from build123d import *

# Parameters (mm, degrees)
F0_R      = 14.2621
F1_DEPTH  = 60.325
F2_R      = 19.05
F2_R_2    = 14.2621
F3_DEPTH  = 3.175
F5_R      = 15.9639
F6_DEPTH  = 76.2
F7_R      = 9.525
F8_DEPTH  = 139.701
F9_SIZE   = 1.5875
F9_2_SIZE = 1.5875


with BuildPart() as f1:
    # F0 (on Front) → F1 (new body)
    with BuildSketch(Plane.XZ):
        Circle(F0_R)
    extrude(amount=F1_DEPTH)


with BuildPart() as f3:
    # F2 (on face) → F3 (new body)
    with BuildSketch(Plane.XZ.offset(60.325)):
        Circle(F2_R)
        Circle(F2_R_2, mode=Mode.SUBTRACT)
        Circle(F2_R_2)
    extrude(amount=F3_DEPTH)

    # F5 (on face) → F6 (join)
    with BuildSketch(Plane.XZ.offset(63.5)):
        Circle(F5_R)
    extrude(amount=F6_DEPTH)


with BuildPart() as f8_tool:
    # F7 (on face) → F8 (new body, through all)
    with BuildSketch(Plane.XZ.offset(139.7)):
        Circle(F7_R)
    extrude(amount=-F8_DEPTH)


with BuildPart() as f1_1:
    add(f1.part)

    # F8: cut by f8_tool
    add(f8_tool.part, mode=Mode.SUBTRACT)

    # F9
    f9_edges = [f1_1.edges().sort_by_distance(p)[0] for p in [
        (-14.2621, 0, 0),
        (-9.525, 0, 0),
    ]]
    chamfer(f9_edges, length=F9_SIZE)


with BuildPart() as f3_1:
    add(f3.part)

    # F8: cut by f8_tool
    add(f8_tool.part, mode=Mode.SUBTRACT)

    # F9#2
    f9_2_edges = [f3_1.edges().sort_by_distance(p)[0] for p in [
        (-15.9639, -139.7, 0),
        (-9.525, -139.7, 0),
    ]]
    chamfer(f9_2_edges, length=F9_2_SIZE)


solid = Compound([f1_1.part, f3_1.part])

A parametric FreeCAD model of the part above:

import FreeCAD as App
import Part
import Sketcher
Q = App.Units.Quantity


def edges_at(feature, points):
    """Names of the edges that pass closest to the given points."""
    edges = feature.Shape.Edges
    near = lambda p: min(range(len(edges)), key=lambda i: edges[i].distToShape(Part.Vertex(*p))[0])
    return sorted({f"Edge{near(p) + 1}" for p in points})

doc = App.newDocument("Part")
body = doc.addObject("PartDesign::Body", "Body")

# Sketch on XZ plane
sketch1 = doc.addObject("Sketcher::SketchObject", "Sketch")
body.addObject(sketch1)
sketch1.AttachmentSupport = (doc.XZ_Plane, [""])
sketch1.MapMode = "FlatFace"
sketch1.addGeometry(Part.Circle(App.Vector(0, 0, 0), App.Vector(0, 0, 1), 14.2621), False)
sketch1.addConstraint([
    Sketcher.Constraint("Coincident", 0, 3, -1, 1),
    Sketcher.Constraint("Diameter", 0, Q("1.123 in")),
])
pad1 = doc.addObject("PartDesign::Pad", "Pad")
body.addObject(pad1)
pad1.Profile = sketch1
pad1.Length = Q("2.375 in")
body2 = doc.addObject("PartDesign::Body", "Body001")

# Sketch on XZ plane
sketch2 = doc.addObject("Sketcher::SketchObject", "Sketch001")
body2.addObject(sketch2)
sketch2.AttachmentSupport = (doc.getObject("XZ_Plane001"), [""])
sketch2.MapMode = "FlatFace"
sketch2.AttachmentOffset = App.Placement(App.Vector(0, 0, 2.375 * 25.4), App.Rotation())
sketch2.addGeometry(Part.Circle(App.Vector(0, 0, 0), App.Vector(0, 0, 1), 19.05), False)
sketch2.addConstraint([
    Sketcher.Constraint("Coincident", 0, 3, -1, 1),
    Sketcher.Constraint("Diameter", 0, Q("1.5 in")),
])
pad2 = doc.addObject("PartDesign::Pad", "Pad001")
body2.addObject(pad2)
pad2.Profile = sketch2
pad2.Length = Q("0.125 in")

# Sketch on XZ plane
sketch3 = doc.addObject("Sketcher::SketchObject", "Sketch002")
body2.addObject(sketch3)
sketch3.AttachmentSupport = (doc.getObject("XZ_Plane001"), [""])
sketch3.MapMode = "FlatFace"
sketch3.AttachmentOffset = App.Placement(App.Vector(0, 0, 2.5 * 25.4), App.Rotation())
sketch3.addGeometry(Part.Circle(App.Vector(0, 0, 0), App.Vector(0, 0, 1), 15.9639), False)
sketch3.addConstraint([
    Sketcher.Constraint("Coincident", 0, 3, -1, 1),
    Sketcher.Constraint("Diameter", 0, Q("1.257 in")),
])
pad3 = doc.addObject("PartDesign::Pad", "Pad002")
body2.addObject(pad3)
pad3.Profile = sketch3
pad3.Length = Q("3 in")
body3 = doc.addObject("PartDesign::Body", "Body002")

# Sketch on XZ plane
sketch4 = doc.addObject("Sketcher::SketchObject", "Sketch003")
body3.addObject(sketch4)
sketch4.AttachmentSupport = (doc.getObject("XZ_Plane002"), [""])
sketch4.MapMode = "FlatFace"
sketch4.AttachmentOffset = App.Placement(App.Vector(0, 0, 5.5 * 25.4), App.Rotation())
sketch4.addGeometry(Part.Circle(App.Vector(0, 0, 0), App.Vector(0, 0, 1), 9.525), False)
sketch4.addConstraint([
    Sketcher.Constraint("Coincident", 0, 3, -1, 1),
    Sketcher.Constraint("Diameter", 0, Q("0.75 in")),
])
pad4 = doc.addObject("PartDesign::Pad", "Pad003")
body3.addObject(pad4)
pad4.Profile = sketch4
pad4.Length = 139.701
pad4.Reversed = True
doc.recompute()

body4 = doc.addObject("PartDesign::Body", "Body003")
body4.BaseFeature = body3
boolean = doc.addObject("PartDesign::Boolean", "Boolean")
body.addObject(boolean)
boolean.Type = "Cut"
boolean.addObjects([body4])
doc.recompute()

chamfer = doc.addObject("PartDesign::Chamfer", "Chamfer")
body.addObject(chamfer)
chamfer.Base = (boolean, edges_at(boolean, [(-14.262, 0, 0), (-9.525, 0, 0)]))
chamfer.Size = Q("0.0625 in")
doc.recompute()

boolean2 = doc.addObject("PartDesign::Boolean", "Boolean001")
body2.addObject(boolean2)
boolean2.Type = "Cut"
boolean2.addObjects([body3])
doc.recompute()

chamfer2 = doc.addObject("PartDesign::Chamfer", "Chamfer001")
body2.addObject(chamfer2)
chamfer2.Base = (boolean2, edges_at(boolean2, [(-15.964, -139.7, 0), (-9.525, -139.7, 0)]))
chamfer2.Size = Q("0.0625 in")

doc.recompute()
